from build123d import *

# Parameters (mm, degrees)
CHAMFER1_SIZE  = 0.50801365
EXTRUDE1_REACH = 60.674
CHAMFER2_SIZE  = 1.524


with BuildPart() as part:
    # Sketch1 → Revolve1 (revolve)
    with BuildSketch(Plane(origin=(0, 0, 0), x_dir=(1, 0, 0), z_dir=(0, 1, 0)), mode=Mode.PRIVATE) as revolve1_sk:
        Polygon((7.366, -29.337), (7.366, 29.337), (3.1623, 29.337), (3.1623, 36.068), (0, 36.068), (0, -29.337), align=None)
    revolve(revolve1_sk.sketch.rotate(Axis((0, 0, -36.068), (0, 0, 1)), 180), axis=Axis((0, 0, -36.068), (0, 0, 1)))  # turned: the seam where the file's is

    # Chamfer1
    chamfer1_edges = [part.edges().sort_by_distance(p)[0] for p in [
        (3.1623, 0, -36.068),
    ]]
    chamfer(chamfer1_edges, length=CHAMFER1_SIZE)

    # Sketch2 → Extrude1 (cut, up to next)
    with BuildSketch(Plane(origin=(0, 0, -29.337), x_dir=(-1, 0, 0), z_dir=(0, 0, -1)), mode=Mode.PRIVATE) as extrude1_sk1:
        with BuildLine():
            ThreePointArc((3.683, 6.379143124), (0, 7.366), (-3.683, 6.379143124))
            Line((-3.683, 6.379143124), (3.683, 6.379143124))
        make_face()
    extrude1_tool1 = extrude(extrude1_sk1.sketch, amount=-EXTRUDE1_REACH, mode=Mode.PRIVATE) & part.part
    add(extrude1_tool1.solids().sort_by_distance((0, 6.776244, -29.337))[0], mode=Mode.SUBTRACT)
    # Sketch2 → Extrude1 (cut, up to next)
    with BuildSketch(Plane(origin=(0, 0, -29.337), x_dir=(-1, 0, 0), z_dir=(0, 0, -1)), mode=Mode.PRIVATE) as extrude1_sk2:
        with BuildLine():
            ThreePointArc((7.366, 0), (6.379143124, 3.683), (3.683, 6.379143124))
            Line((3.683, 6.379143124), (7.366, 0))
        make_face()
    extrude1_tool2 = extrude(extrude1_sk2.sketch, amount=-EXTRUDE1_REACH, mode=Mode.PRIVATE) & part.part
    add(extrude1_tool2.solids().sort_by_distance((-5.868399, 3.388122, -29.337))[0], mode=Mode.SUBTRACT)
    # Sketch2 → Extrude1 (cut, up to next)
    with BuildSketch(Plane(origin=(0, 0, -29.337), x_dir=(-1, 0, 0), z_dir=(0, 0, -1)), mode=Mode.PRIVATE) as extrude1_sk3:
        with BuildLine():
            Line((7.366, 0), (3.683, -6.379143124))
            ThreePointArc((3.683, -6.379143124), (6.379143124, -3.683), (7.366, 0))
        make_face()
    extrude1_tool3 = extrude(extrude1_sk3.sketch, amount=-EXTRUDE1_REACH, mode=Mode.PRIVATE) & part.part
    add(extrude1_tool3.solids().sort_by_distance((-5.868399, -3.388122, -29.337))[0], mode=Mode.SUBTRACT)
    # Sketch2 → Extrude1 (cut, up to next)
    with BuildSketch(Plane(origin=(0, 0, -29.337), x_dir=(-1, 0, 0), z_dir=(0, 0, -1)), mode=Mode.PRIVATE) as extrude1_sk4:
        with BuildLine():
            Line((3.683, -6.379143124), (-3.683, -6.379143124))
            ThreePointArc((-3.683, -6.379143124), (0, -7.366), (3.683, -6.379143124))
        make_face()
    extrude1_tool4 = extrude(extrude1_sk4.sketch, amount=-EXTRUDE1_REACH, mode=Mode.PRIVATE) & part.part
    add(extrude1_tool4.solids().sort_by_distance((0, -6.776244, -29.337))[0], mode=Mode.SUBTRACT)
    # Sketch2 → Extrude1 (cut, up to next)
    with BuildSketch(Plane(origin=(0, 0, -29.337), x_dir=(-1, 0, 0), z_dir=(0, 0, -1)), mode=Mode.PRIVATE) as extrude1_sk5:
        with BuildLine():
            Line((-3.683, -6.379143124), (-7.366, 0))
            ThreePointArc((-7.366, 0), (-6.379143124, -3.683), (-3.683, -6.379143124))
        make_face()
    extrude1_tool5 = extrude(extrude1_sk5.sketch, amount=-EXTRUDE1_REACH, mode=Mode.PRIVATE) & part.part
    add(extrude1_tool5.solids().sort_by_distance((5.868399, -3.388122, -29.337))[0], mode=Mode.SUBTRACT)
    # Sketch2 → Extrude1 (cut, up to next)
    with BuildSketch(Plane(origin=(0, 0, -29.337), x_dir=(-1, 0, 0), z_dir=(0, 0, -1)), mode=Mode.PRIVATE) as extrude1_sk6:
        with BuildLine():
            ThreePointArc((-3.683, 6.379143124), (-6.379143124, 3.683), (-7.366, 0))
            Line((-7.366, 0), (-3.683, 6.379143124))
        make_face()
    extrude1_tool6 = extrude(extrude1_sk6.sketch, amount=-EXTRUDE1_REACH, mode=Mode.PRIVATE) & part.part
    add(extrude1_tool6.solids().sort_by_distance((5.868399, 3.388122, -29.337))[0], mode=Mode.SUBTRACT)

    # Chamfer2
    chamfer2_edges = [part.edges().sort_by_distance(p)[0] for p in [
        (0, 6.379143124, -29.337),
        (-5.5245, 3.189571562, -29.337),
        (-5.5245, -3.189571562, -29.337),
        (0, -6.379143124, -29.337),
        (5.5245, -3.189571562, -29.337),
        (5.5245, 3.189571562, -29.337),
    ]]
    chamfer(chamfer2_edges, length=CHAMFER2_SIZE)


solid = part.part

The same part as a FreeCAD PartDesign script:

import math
import FreeCAD as App
import Part
import Sketcher
from FreeCAD import Vector
Q = App.Units.Quantity


def edges_at(feature, points):
    """Names of the edges that pass closest to the given points."""
    edges = feature.Shape.Edges
    near = lambda p: min(range(len(edges)), key=lambda i: edges[i].distToShape(Part.Vertex(*p))[0])
    return sorted({f"Edge{near(p) + 1}" for p in points})

doc = App.newDocument("Part")
body = doc.addObject("PartDesign::Body", "Body")

# Sketch on XZ plane
sketch1 = doc.addObject("Sketcher::SketchObject", "Sketch")
body.addObject(sketch1)
sketch1.AttachmentSupport = (doc.XZ_Plane, [""])
sketch1.MapMode = "FlatFace"
sketch1.addGeometry([
    Part.LineSegment(Vector(7.366, 29.337, 0), Vector(7.366, -29.337, 0)),  # 0
    Part.LineSegment(Vector(7.366, -29.337, 0), Vector(3.1623, -29.337, 0)),  # 1
    Part.LineSegment(Vector(3.1623, -29.337, 0), Vector(3.1623, -36.068, 0)),  # 2
    Part.LineSegment(Vector(3.1623, -36.068, 0), Vector(0, -36.068, 0)),  # 3
    Part.LineSegment(Vector(0, -36.068, 0), Vector(0, 29.337, 0)),  # 4
    Part.LineSegment(Vector(0, 29.337, 0), Vector(7.366, 29.337, 0)),  # 5
], False)
sketch1.addConstraint([
    Sketcher.Constraint("Coincident", 0, 2, 1, 1),
    Sketcher.Constraint("Coincident", 1, 2, 2, 1),
    Sketcher.Constraint("Coincident", 2, 2, 3, 1),
    Sketcher.Constraint("Coincident", 3, 2, 4, 1),
    Sketcher.Constraint("Coincident", 4, 2, 5, 1),
    Sketcher.Constraint("Coincident", 5, 2, 0, 1),
    Sketcher.Constraint("Vertical", 0),
    Sketcher.Constraint("Horizontal", 1),
    Sketcher.Constraint("Vertical", 2),
    Sketcher.Constraint("Horizontal", 3),
    Sketcher.Constraint("Vertical", 4),
    Sketcher.Constraint("Horizontal", 5),
    Sketcher.Constraint("PointOnObject", 3, 2, -2),
    Sketcher.Constraint("DistanceX", 5, 1, 5, 2, Q("0.29 in")),
    Sketcher.Constraint("DistanceY", 0, 2, 0, 1, Q("2.31 in")),
    Sketcher.Constraint("DistanceY", 2, 2, 2, 1, Q("0.265 in")),
    Sketcher.Constraint("DistanceY", 2, 2, -1, 1, Q("1.42 in")),
    Sketcher.Constraint("DistanceX", 1, 2, 1, 1, Q("0.1655 in")),
])
revolution = doc.addObject("PartDesign::Revolution", "Revolution")
body.addObject(revolution)
revolution.Profile = sketch1
revolution.ReferenceAxis = (sketch1, ["V_Axis"])
revolution.Angle = 360
doc.recompute()

chamfer = doc.addObject("PartDesign::Chamfer", "Chamfer")
body.addObject(chamfer)
chamfer.Base = (revolution, edges_at(revolution, [(3.162, 0, -36.068)]))
chamfer.Size = 0.508014

# Sketch on XY plane
sketch2 = doc.addObject("Sketcher::SketchObject", "Sketch001")
body.addObject(sketch2)
sketch2.AttachmentSupport = (doc.XY_Plane, [""])
sketch2.MapMode = "FlatFace"
sketch2.AttachmentOffset = App.Placement(Vector(0, 0, -1.155 * 25.4), App.Rotation())
sketch2.addGeometry([
    Part.ArcOfCircle(Part.Circle(Vector(0, 0, 0), Vector(0, 0, 1), 7.366), math.radians(60), math.radians(120)),
    Part.LineSegment(Vector(3.683, 6.379143, 0), Vector(-3.683, 6.379143, 0)),
], False)
sketch2.addConstraint([
    Sketcher.Constraint("Coincident", 0, 1, 1, 1),
    Sketcher.Constraint("Coincident", 1, 2, 0, 2),
    Sketcher.Constraint("Horizontal", 1),
    Sketcher.Constraint("Coincident", 0, 3, -1, 1),
    Sketcher.Constraint("Radius", 0, Q("0.29 in")),
    Sketcher.Constraint("DistanceX", 1, 2, 1, 1, Q("0.29 in")),
])
pocket1 = doc.addObject("PartDesign::Pocket", "Pocket")
body.addObject(pocket1)
pocket1.Profile = sketch2
pocket1.Type = "UpToFirst"
pocket1.Reversed = True

# Sketch on XY plane
sketch3 = doc.addObject("Sketcher::SketchObject", "Sketch002")
body.addObject(sketch3)
sketch3.AttachmentSupport = (doc.XY_Plane, [""])
sketch3.MapMode = "FlatFace"
sketch3.AttachmentOffset = App.Placement(Vector(0, 0, -1.155 * 25.4), App.Rotation())
sketch3.addGeometry([
    Part.ArcOfCircle(Part.Circle(Vector(0, 0, 0), Vector(0, 0, 1), 7.366), math.radians(120), math.radians(180)),
    Part.LineSegment(Vector(-3.683, 6.379143, 0), Vector(-7.366, 0, 0)),
], False)
sketch3.addConstraint([
    Sketcher.Constraint("Coincident", 0, 1, 1, 1),
    Sketcher.Constraint("Coincident", 1, 2, 0, 2),
    Sketcher.Constraint("Coincident", 0, 3, -1, 1),
    Sketcher.Constraint("PointOnObject", 1, 2, -1),
    Sketcher.Constraint("Radius", 0, Q("0.29 in")),
    Sketcher.Constraint("Angle", 1, Q("-120 deg")),
])
pocket2 = doc.addObject("PartDesign::Pocket", "Pocket001")
body.addObject(pocket2)
pocket2.Profile = sketch3
pocket2.Type = "UpToFirst"
pocket2.Reversed = True

# Sketch on XY plane
sketch4 = doc.addObject("Sketcher::SketchObject", "Sketch003")
body.addObject(sketch4)
sketch4.AttachmentSupport = (doc.XY_Plane, [""])
sketch4.MapMode = "FlatFace"
sketch4.AttachmentOffset = App.Placement(Vector(0, 0, -1.155 * 25.4), App.Rotation())
sketch4.addGeometry([
    Part.LineSegment(Vector(-7.366, 0, 0), Vector(-3.683, -6.379143, 0)),
    Part.ArcOfCircle(Part.Circle(Vector(0, 0, 0), Vector(0, 0, 1), 7.366), math.radians(-180), math.radians(-120)),
], False)
sketch4.addConstraint([
    Sketcher.Constraint("Coincident", 0, 1, 1, 1),
    Sketcher.Constraint("Coincident", 1, 2, 0, 2),
    Sketcher.Constraint("Coincident", 1, 3, -1, 1),
    Sketcher.Constraint("PointOnObject", 0, 1, -1),
    Sketcher.Constraint("Radius", 1, Q("0.29 in")),
    Sketcher.Constraint("Angle", 0, Q("-60 deg")),
])
pocket3 = doc.addObject("PartDesign::Pocket", "Pocket002")
body.addObject(pocket3)
pocket3.Profile = sketch4
pocket3.Type = "UpToFirst"
pocket3.Reversed = True

# Sketch on XY plane
sketch5 = doc.addObject("Sketcher::SketchObject", "Sketch004")
body.addObject(sketch5)
sketch5.AttachmentSupport = (doc.XY_Plane, [""])
sketch5.MapMode = "FlatFace"
sketch5.AttachmentOffset = App.Placement(Vector(0, 0, -1.155 * 25.4), App.Rotation())
sketch5.addGeometry([
    Part.LineSegment(Vector(-3.683, -6.379143, 0), Vector(3.683, -6.379143, 0)),
    Part.ArcOfCircle(Part.Circle(Vector(0, 0, 0), Vector(0, 0, 1), 7.366), math.radians(-120), math.radians(-60)),
], False)
sketch5.addConstraint([
    Sketcher.Constraint("Coincident", 0, 1, 1, 1),
    Sketcher.Constraint("Coincident", 1, 2, 0, 2),
    Sketcher.Constraint("Horizontal", 0),
    Sketcher.Constraint("Coincident", 1, 3, -1, 1),
    Sketcher.Constraint("Radius", 1, Q("0.29 in")),
    Sketcher.Constraint("DistanceX", 0, 1, 0, 2, Q("0.29 in")),
])
pocket4 = doc.addObject("PartDesign::Pocket", "Pocket003")
body.addObject(pocket4)
pocket4.Profile = sketch5
pocket4.Type = "UpToFirst"
pocket4.Reversed = True

# Sketch on XY plane
sketch6 = doc.addObject("Sketcher::SketchObject", "Sketch005")
body.addObject(sketch6)
sketch6.AttachmentSupport = (doc.XY_Plane, [""])
sketch6.MapMode = "FlatFace"
sketch6.AttachmentOffset = App.Placement(Vector(0, 0, -1.155 * 25.4), App.Rotation())
sketch6.addGeometry([
    Part.LineSegment(Vector(3.683, -6.379143, 0), Vector(7.366, 0, 0)),
    Part.ArcOfCircle(Part.Circle(Vector(0, 0, 0), Vector(0, 0, 1), 7.366), math.radians(-60), math.radians(0)),
], False)
sketch6.addConstraint([
    Sketcher.Constraint("Coincident", 0, 1, 1, 1),
    Sketcher.Constraint("Coincident", 1, 2, 0, 2),
    Sketcher.Constraint("Coincident", 1, 3, -1, 1),
    Sketcher.Constraint("PointOnObject", 1, 2, -1),
    Sketcher.Constraint("Radius", 1, Q("0.29 in")),
    Sketcher.Constraint("Angle", 0, Q("60 deg")),
])
pocket5 = doc.addObject("PartDesign::Pocket", "Pocket004")
body.addObject(pocket5)
pocket5.Profile = sketch6
pocket5.Type = "UpToFirst"
pocket5.Reversed = True

# Sketch on XY plane
sketch7 = doc.addObject("Sketcher::SketchObject", "Sketch006")
body.addObject(sketch7)
sketch7.AttachmentSupport = (doc.XY_Plane, [""])
sketch7.MapMode = "FlatFace"
sketch7.AttachmentOffset = App.Placement(Vector(0, 0, -1.155 * 25.4), App.Rotation())
sketch7.addGeometry([
    Part.ArcOfCircle(Part.Circle(Vector(0, 0, 0), Vector(0, 0, 1), 7.366), math.radians(0), math.radians(60)),
    Part.LineSegment(Vector(7.366, 0, 0), Vector(3.683, 6.379143, 0)),
], False)
sketch7.addConstraint([
    Sketcher.Constraint("Coincident", 0, 1, 1, 1),
    Sketcher.Constraint("Coincident", 1, 2, 0, 2),
    Sketcher.Constraint("Coincident", 0, 3, -1, 1),
    Sketcher.Constraint("PointOnObject", 0, 1, -1),
    Sketcher.Constraint("Radius", 0, Q("0.29 in")),
    Sketcher.Constraint("Angle", 1, Q("120 deg")),
])
pocket6 = doc.addObject("PartDesign::Pocket", "Pocket005")
body.addObject(pocket6)
pocket6.Profile = sketch7
pocket6.Type = "UpToFirst"
pocket6.Reversed = True
doc.recompute()

chamfer2 = doc.addObject("PartDesign::Chamfer", "Chamfer001")
body.addObject(chamfer2)
chamfer2.Base = (pocket6, edges_at(pocket6, [
    (0, 6.379, -29.337),
    (-5.524, 3.19, -29.337),
    (-5.524, -3.19, -29.337),
    (0, -6.379, -29.337),
    (5.524, -3.19, -29.337),
    (5.524, 3.19, -29.337),
]))
chamfer2.Size = Q("0.06 in")

doc.recompute()
